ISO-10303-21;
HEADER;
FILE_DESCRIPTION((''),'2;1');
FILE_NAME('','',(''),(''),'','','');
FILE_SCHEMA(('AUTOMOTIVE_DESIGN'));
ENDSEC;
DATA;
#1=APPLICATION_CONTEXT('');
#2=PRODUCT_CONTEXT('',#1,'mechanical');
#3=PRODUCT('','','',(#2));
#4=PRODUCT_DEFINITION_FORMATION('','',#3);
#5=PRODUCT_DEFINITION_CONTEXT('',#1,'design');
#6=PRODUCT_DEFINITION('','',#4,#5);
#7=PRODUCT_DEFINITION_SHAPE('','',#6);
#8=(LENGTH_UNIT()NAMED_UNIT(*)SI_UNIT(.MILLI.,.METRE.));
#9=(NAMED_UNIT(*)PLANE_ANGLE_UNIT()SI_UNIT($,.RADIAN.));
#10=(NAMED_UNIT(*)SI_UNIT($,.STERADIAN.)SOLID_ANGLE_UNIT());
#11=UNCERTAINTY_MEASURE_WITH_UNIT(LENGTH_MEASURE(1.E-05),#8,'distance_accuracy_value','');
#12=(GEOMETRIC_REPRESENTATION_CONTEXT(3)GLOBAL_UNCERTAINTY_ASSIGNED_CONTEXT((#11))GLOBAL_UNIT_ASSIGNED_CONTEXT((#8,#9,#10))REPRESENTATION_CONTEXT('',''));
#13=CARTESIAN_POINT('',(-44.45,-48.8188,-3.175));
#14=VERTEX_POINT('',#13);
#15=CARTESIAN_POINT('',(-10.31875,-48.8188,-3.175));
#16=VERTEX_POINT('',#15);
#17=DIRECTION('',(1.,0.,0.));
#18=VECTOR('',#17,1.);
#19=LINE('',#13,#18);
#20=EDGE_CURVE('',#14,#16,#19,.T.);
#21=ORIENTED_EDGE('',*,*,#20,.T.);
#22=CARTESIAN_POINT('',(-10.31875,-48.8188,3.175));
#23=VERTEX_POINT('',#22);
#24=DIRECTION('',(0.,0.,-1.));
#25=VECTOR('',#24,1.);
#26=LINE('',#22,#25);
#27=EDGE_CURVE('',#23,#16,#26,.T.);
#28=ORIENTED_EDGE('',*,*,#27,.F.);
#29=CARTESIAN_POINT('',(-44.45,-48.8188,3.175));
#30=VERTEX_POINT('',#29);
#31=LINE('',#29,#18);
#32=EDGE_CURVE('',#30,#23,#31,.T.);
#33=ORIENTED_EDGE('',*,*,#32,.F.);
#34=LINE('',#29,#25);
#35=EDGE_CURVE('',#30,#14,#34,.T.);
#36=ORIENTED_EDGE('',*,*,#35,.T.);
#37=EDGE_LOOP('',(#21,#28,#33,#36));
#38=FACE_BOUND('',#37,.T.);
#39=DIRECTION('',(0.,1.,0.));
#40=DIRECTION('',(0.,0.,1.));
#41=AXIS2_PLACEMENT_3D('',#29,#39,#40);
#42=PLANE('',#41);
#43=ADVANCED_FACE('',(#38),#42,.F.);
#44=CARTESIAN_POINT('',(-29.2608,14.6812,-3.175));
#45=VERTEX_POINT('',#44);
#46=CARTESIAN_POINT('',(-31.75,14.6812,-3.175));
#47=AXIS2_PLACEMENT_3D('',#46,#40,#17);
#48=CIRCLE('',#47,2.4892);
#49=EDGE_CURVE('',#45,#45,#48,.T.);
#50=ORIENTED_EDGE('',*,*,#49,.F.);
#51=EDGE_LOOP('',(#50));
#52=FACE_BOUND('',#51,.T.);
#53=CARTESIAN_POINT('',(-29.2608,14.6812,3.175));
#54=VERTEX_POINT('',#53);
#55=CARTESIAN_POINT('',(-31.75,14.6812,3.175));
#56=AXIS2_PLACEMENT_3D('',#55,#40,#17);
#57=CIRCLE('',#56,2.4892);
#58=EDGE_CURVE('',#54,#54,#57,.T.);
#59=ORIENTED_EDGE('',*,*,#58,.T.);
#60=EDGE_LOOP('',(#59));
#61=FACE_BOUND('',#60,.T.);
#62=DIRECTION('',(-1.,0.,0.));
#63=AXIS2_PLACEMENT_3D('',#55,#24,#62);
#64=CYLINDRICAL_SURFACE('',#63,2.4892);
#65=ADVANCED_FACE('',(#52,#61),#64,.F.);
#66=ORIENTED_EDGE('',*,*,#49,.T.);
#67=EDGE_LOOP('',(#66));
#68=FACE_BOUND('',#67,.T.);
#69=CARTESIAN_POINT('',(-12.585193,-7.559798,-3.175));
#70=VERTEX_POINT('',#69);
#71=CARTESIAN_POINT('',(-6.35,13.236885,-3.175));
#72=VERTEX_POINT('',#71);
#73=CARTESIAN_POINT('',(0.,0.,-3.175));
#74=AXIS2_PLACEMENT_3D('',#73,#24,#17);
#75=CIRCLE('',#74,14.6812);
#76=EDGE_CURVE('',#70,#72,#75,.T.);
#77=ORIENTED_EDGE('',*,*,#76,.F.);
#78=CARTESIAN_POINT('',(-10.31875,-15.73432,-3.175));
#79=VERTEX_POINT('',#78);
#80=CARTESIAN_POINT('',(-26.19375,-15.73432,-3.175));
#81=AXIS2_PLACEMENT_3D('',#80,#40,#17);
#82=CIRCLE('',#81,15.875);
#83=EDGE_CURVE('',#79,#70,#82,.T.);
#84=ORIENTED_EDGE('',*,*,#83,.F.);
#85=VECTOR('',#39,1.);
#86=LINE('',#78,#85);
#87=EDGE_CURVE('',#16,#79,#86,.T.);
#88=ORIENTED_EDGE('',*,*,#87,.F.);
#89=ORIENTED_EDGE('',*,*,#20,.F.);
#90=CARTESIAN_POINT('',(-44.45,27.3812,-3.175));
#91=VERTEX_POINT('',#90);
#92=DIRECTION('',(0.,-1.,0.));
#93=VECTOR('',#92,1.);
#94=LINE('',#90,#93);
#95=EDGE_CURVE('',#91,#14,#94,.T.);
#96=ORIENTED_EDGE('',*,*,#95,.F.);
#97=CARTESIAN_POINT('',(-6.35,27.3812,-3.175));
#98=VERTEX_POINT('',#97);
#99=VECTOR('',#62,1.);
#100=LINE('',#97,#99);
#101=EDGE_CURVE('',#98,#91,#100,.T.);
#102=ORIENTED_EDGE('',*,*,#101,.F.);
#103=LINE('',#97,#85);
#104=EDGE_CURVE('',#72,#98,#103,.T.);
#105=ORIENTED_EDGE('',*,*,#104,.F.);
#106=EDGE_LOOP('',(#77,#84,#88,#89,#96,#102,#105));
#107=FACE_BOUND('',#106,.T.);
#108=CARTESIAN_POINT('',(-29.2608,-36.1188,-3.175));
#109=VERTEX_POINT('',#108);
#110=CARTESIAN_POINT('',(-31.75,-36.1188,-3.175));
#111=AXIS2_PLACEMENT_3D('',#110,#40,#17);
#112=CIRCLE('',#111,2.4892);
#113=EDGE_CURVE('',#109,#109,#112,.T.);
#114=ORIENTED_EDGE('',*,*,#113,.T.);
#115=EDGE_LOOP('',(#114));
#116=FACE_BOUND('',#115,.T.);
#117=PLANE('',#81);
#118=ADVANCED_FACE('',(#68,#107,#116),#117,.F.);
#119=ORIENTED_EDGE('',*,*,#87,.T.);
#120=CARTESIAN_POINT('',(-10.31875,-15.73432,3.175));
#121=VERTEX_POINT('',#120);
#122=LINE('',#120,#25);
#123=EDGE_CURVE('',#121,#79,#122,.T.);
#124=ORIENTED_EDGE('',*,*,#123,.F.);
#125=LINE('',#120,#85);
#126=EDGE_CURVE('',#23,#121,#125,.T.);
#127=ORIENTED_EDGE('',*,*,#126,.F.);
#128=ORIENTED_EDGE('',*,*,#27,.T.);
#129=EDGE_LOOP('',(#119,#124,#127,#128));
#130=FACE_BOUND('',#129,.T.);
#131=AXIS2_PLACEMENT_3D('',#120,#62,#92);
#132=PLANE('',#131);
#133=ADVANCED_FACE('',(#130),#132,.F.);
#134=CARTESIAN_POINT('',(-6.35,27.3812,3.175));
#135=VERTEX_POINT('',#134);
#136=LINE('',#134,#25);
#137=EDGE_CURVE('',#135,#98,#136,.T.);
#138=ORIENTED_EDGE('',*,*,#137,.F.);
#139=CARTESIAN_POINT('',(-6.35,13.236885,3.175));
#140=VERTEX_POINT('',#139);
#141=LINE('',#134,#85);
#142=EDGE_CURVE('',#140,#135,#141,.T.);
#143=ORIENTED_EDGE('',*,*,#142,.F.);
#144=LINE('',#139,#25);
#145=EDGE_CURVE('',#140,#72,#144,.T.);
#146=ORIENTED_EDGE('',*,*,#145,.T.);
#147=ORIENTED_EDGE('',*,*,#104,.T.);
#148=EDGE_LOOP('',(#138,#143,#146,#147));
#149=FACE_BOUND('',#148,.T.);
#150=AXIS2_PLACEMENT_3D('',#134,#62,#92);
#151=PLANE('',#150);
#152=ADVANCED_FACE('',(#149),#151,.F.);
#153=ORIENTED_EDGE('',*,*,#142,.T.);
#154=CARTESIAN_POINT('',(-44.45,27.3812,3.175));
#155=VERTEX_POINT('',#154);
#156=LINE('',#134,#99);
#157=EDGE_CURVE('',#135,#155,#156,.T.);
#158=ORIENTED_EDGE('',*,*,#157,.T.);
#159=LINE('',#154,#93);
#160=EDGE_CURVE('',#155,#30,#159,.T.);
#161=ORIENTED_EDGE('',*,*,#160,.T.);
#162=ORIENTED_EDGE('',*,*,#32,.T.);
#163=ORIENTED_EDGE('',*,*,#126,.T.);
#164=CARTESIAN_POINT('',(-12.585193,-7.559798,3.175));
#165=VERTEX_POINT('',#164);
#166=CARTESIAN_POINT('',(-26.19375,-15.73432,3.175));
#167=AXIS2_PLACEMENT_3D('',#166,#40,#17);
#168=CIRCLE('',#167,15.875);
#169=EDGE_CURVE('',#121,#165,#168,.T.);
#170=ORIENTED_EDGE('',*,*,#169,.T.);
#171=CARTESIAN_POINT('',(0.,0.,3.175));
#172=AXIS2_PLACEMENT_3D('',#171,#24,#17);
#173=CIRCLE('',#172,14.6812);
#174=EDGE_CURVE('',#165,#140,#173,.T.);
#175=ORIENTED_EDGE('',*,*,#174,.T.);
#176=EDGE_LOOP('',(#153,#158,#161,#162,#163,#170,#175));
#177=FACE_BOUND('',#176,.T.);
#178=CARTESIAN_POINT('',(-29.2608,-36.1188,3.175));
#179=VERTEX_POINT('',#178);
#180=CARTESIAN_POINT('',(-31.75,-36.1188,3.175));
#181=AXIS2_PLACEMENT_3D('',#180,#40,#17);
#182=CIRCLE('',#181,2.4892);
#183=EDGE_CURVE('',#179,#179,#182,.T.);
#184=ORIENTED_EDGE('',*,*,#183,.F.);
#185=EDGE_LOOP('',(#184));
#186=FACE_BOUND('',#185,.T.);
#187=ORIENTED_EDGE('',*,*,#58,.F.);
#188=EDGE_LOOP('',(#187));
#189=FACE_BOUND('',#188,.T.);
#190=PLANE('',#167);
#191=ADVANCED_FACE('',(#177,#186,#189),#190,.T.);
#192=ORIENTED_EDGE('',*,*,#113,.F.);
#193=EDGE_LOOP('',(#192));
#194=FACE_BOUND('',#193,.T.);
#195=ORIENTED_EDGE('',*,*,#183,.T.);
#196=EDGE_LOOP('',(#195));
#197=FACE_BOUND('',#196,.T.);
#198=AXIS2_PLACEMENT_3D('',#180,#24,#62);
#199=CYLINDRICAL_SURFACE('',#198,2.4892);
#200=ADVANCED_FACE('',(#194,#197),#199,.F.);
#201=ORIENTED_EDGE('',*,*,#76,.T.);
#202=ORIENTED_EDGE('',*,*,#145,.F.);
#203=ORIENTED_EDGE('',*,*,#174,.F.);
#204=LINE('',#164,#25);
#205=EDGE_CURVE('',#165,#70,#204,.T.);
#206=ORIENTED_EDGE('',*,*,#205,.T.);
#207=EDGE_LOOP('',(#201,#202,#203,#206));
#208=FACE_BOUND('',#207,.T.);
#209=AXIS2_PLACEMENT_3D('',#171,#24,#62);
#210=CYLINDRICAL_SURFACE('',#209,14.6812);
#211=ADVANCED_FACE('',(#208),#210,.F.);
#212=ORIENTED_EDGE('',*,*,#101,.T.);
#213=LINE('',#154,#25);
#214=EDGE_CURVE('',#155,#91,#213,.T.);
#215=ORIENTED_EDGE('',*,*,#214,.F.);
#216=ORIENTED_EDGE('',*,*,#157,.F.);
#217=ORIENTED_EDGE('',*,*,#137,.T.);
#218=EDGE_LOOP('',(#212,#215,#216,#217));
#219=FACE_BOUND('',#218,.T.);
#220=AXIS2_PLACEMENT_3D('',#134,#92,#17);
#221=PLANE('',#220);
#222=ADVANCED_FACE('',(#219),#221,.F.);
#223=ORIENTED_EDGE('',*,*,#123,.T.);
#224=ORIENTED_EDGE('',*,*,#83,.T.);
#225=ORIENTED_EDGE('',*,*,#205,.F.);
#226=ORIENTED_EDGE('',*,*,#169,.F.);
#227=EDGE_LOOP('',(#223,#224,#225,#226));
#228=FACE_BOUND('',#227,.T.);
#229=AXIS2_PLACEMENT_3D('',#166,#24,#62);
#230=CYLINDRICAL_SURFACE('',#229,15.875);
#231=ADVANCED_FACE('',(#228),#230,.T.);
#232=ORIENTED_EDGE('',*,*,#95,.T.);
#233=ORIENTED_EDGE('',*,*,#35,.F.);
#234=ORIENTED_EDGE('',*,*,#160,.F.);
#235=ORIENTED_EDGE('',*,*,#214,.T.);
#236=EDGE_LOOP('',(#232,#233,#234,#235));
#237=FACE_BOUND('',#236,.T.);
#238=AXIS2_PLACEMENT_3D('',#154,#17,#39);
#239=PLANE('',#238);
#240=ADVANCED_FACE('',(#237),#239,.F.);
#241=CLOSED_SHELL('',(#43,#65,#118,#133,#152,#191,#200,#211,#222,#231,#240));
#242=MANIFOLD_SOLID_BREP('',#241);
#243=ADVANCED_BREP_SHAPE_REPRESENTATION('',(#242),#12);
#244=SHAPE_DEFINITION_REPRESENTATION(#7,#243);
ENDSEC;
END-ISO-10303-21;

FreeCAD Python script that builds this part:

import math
import FreeCAD as App
import Part
import Sketcher
from FreeCAD import Vector
Q = App.Units.Quantity

doc = App.newDocument("Part")
body = doc.addObject("PartDesign::Body", "Body")

# Sketch on XY plane
sketch1 = doc.addObject("Sketcher::SketchObject", "Sketch")
body.addObject(sketch1)
sketch1.AttachmentSupport = (doc.XY_Plane, [""])
sketch1.MapMode = "FlatFace"
sketch1.addGeometry([
    Part.LineSegment(Vector(-6.3, 27.4, 0), Vector(-44.5, 27.4, 0)),  # 0
    Part.LineSegment(Vector(-44.5, 27.4, 0), Vector(-44.5, -48.8, 0)),  # 1
    Part.LineSegment(Vector(-44.5, -48.8, 0), Vector(-10.3, -48.8, 0)),  # 2
    Part.LineSegment(Vector(-10.3, -48.8, 0), Vector(-10.3, -15.7, 0)),  # 3
    Part.ArcOfCircle(Part.Circle(Vector(-26.2, -15.7, 0), Vector(0, 0, 1), 15.9), math.radians(0), math.radians(31)),  # 4
    Part.ArcOfCircle(Part.Circle(Vector(0, 0, 0), Vector(0, 0, 1), 14.7), math.radians(116), math.radians(211)),  # 5
    Part.LineSegment(Vector(-6.3, 13.2, 0), Vector(-6.3, 27.4, 0)),  # 6
    Part.Circle(Vector(-31.8, -36.1, 0), Vector(0, 0, 1), 2.5),  # 7
    Part.Circle(Vector(-31.8, 14.7, 0), Vector(0, 0, 1), 2.5),  # 8
], False)
sketch1.addConstraint([
    Sketcher.Constraint("Coincident", 0, 2, 1, 1),
    Sketcher.Constraint("Coincident", 1, 2, 2, 1),
    Sketcher.Constraint("Coincident", 2, 2, 3, 1),
    Sketcher.Constraint("Tangent", 3, 2, 4, 1),
    Sketcher.Constraint("Tangent", 4, 2, 5, 2),
    Sketcher.Constraint("Coincident", 5, 1, 6, 1),
    Sketcher.Constraint("Coincident", 6, 2, 0, 1),
    Sketcher.Constraint("Horizontal", 0),
    Sketcher.Constraint("Vertical", 1),
    Sketcher.Constraint("Horizontal", 2),
    Sketcher.Constraint("Vertical", 3),
    Sketcher.Constraint("Vertical", 6),
    Sketcher.Constraint("Coincident", 5, 3, -1, 1),
    Sketcher.Constraint("Equal", 7, 8),
    Sketcher.Constraint("Vertical", 7, 3, 8, 3),
    Sketcher.Constraint("DistanceY", 1, 2, 1, 1, Q("3 in")),
    Sketcher.Constraint("Diameter", 7, Q("0.196 in")),
    Sketcher.Constraint("DistanceX", 0, 2, 0, 1, Q("1.5 in")),
    Sketcher.Constraint("Radius", 4, Q("0.625 in")),
    Sketcher.Constraint("Radius", 5, Q("0.578 in")),
    Sketcher.Constraint("DistanceY", 7, 3, 8, 3, Q("2 in")),
    Sketcher.Constraint("DistanceX", 8, 3, 5, 1, Q("1 in")),
    Sketcher.Constraint("DistanceY", 8, 3, 0, 2, Q("0.5 in")),
    Sketcher.Constraint("DistanceX", 2, 1, 2, 2, Q("1.34375 in")),
    Sketcher.Constraint("DistanceX", 7, 3, -1, 1, Q("1.25 in")),
    Sketcher.Constraint("DistanceY", 7, 3, -1, 1, Q("1.422 in")),
])
pad1 = doc.addObject("PartDesign::Pad", "Pad")
body.addObject(pad1)
pad1.Profile = sketch1
pad1.Length = Q("0.25 in")
pad1.Midplane = True

doc.recompute()
